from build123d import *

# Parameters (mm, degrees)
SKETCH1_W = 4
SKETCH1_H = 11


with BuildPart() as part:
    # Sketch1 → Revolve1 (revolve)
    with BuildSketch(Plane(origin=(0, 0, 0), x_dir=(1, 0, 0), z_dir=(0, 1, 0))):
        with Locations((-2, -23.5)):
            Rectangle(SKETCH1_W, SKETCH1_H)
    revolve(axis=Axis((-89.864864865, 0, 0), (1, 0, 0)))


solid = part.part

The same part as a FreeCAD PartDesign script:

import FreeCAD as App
import Part
import Sketcher
from FreeCAD import Vector
Q = App.Units.Quantity

doc = App.newDocument("Part")
body = doc.addObject("PartDesign::Body", "Body")

# Sketch on XZ plane
sketch1 = body.newObject("Sketcher::SketchObject", "Sketch")
sketch1.AttachmentSupport = (doc.getObject("XZ_Plane"), [""])
sketch1.MapMode = "FlatFace"
sketch1.addGeometry([
    Part.LineSegment(Vector(-4, 18, 0), Vector(-4, 29, 0)),
    Part.LineSegment(Vector(-4, 29, 0), Vector(0, 29, 0)),
    Part.LineSegment(Vector(0, 29, 0), Vector(0, 18, 0)),
    Part.LineSegment(Vector(0, 18, 0), Vector(-4, 18, 0)),
], False)
sketch1.addConstraint([
    Sketcher.Constraint("Coincident", 0, 2, 1, 1),
    Sketcher.Constraint("Coincident", 1, 2, 2, 1),
    Sketcher.Constraint("Coincident", 2, 2, 3, 1),
    Sketcher.Constraint("Coincident", 3, 2, 0, 1),
    Sketcher.Constraint("Vertical", 0),
    Sketcher.Constraint("Horizontal", 1),
    Sketcher.Constraint("Vertical", 2),
    Sketcher.Constraint("Horizontal", 3),
    Sketcher.Constraint("PointOnObject", 1, 2, -2),
    Sketcher.Constraint("DistanceX", 1, 1, 1, 2, Q("4 mm")),
    Sketcher.Constraint("DistanceY", 0, 1, 0, 2, Q("11 mm")),
    Sketcher.Constraint("DistanceY", -1, 1, 0, 2, Q("29 mm")),
])
revolution = body.newObject("PartDesign::Revolution", "Revolution")
revolution.Profile = sketch1
revolution.ReferenceAxis = (sketch1, ["H_Axis"])
revolution.Angle = 360

doc.recompute()
